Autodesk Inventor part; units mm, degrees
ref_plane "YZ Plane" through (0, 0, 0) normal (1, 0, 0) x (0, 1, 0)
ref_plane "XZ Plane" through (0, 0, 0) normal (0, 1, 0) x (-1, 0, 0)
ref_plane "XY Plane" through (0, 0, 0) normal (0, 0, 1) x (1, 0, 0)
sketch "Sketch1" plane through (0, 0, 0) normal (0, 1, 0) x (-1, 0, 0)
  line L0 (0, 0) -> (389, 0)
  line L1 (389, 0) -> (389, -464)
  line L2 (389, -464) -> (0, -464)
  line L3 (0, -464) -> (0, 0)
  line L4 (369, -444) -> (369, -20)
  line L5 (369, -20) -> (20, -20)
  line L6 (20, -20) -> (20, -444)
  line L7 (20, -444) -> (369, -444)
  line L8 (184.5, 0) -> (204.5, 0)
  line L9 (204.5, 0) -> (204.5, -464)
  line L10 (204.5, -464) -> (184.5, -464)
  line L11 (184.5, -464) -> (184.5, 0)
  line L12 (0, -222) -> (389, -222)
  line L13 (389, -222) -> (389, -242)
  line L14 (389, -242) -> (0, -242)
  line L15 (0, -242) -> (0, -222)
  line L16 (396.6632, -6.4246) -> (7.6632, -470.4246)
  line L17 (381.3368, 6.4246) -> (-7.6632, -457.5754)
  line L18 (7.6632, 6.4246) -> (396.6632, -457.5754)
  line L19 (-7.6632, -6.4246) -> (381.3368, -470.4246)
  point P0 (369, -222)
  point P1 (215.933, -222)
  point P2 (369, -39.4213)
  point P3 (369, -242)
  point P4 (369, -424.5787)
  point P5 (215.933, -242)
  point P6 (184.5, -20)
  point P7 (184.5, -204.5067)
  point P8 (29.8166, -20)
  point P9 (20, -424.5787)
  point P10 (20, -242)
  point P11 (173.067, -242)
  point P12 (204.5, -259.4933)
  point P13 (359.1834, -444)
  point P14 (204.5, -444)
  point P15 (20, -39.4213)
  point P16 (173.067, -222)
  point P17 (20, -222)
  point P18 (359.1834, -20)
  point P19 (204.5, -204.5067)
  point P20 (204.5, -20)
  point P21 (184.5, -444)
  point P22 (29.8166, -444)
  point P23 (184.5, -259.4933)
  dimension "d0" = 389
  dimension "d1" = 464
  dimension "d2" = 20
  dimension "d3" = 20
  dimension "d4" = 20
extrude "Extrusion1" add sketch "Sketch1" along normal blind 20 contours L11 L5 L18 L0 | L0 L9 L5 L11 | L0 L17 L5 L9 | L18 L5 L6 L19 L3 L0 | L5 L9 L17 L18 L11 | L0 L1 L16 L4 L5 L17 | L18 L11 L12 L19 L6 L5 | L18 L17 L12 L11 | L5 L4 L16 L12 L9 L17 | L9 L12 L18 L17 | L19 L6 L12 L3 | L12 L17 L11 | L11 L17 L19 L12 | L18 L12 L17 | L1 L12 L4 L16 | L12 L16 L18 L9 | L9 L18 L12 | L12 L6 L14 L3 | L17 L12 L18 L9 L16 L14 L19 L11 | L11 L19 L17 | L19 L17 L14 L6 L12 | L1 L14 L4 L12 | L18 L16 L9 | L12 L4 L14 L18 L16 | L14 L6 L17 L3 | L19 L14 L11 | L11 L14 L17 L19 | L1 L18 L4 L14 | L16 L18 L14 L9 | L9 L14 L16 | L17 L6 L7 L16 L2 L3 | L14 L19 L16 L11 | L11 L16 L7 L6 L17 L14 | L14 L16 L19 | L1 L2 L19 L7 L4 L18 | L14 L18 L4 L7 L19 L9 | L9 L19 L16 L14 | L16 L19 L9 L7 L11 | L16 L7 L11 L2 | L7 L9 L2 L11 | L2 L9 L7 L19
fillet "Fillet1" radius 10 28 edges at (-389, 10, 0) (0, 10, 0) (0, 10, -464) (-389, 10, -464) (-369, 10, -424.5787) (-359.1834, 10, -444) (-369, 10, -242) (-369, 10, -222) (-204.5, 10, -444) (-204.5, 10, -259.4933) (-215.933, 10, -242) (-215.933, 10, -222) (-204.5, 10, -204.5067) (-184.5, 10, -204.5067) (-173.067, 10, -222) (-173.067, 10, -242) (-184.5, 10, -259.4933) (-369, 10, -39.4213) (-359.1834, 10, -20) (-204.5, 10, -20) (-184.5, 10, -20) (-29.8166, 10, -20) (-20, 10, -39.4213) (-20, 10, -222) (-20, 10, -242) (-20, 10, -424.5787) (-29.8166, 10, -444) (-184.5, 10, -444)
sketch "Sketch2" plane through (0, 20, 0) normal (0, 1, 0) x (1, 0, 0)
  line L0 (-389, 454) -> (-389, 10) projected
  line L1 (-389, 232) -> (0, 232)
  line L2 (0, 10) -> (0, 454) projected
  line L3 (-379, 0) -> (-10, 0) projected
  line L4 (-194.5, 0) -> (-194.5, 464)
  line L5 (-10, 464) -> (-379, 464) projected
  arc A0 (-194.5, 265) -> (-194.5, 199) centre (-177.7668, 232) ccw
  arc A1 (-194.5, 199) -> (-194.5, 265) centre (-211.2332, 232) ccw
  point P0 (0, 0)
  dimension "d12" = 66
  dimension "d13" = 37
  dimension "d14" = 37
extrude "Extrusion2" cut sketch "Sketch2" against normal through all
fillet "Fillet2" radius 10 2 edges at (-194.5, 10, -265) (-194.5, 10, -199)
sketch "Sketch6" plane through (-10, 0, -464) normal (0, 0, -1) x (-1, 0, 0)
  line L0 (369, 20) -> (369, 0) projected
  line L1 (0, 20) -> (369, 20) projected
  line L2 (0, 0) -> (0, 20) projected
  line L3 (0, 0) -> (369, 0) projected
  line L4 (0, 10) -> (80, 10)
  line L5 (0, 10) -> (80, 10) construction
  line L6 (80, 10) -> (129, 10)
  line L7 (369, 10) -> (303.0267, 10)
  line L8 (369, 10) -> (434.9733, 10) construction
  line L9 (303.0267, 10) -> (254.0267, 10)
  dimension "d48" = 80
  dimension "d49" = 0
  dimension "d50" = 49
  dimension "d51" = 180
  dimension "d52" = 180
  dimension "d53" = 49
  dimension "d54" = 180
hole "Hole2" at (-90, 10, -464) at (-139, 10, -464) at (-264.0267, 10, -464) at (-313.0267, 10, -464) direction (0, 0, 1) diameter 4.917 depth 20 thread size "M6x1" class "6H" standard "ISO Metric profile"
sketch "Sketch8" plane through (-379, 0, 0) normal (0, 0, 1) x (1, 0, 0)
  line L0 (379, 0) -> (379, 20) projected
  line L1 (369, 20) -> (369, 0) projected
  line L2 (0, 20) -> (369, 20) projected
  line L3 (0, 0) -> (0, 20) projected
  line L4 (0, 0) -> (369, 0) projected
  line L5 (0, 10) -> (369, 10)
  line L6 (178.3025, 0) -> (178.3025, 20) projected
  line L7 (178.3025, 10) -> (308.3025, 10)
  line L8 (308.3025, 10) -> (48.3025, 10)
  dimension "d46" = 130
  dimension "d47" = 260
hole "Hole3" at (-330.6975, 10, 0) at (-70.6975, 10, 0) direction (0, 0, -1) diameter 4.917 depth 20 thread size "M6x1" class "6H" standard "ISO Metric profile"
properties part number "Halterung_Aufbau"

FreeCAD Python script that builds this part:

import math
import FreeCAD as App
import Part
import Sketcher

V = App.Vector


def edges_at(feature, points):
    """Names of the edges that pass closest to the given points."""
    edges = feature.Shape.Edges
    near = lambda p: min(range(len(edges)), key=lambda i: edges[i].distToShape(Part.Vertex(*p))[0])
    return sorted({f"Edge{near(p) + 1}" for p in points})


def add_polygon(sketch, points):
    """Adds a closed chain of lines whose ends are joined by coincident constraints."""
    first, n = sketch.GeometryCount, len(points)
    for a, b in zip(points, points[1:] + points[:1]):
        sketch.addGeometry(Part.LineSegment(App.Vector(*a, 0), App.Vector(*b, 0)), False)
    for i in range(n):
        sketch.addConstraint(Sketcher.Constraint("Coincident", first + i, 2, first + (i + 1) % n, 1))

doc = App.newDocument("Part")
params = doc.addObject("Spreadsheet::Sheet", "Params")
for row, (alias, value) in enumerate([
    ("sketch1_width", "389 mm"),
    ("sketch1_height", "464 mm"),
    ("pad1_length", "20 mm"),
    ("fillet_radius", "10 mm"),
    ("sketch2_radius", "37 mm"),
    ("fillet2_radius", "10 mm"),
    ("hole_diameter", "4.917 mm"),
    ("hole_depth", "20 mm"),
    ("hole2_diameter", "4.917 mm"),
    ("hole2_depth", "20 mm"),
], start=1):
    params.set(f"A{row}", alias)
    params.set(f"B{row}", "=" + value)
    params.setAlias(f"B{row}", alias)

body = doc.addObject("PartDesign::Body", "Body")

sketch1 = body.newObject("Sketcher::SketchObject", "Sketch")
sketch1.AttachmentSupport = (doc.getObject("XZ_Plane"), [""])
sketch1.MapMode = "FlatFace"
add_polygon(sketch1, [(0, 0), (0, -464), (-389, -464), (-389, 0)])
add_polygon(sketch1, [(-30, -20), (-184, -20), (-184, -205)])
add_polygon(sketch1, [(-204, -20), (-359, -20), (-204, -205)])
add_polygon(sketch1, [(-20, -39), (-173, -222), (-20, -222)])
add_polygon(sketch1, [(-369, -39), (-369, -222), (-216, -222)])
add_polygon(sketch1, [(-20, -242), (-173, -242), (-20, -425)])
add_polygon(sketch1, [(-369, -242), (-369, -425), (-216, -242)])
add_polygon(sketch1, [(-30, -444), (-184, -259), (-184, -444)])
add_polygon(sketch1, [(-359, -444), (-204, -444), (-204, -259)])
sketch1.addConstraint([
    Sketcher.Constraint("Vertical", 0),
    Sketcher.Constraint("Horizontal", 1),
    Sketcher.Constraint("Vertical", 2),
    Sketcher.Constraint("Horizontal", 3),
    Sketcher.Constraint("Horizontal", 4),
    Sketcher.Constraint("Vertical", 5),
    Sketcher.Constraint("Horizontal", 7),
    Sketcher.Constraint("Vertical", 9),
    Sketcher.Constraint("Horizontal", 11),
    Sketcher.Constraint("Vertical", 12),
    Sketcher.Constraint("Vertical", 13),
    Sketcher.Constraint("Horizontal", 14),
    Sketcher.Constraint("Horizontal", 16),
    Sketcher.Constraint("Vertical", 18),
    Sketcher.Constraint("Vertical", 19),
    Sketcher.Constraint("Horizontal", 21),
    Sketcher.Constraint("Vertical", 23),
    Sketcher.Constraint("Horizontal", 24),
    Sketcher.Constraint("Horizontal", 25),
    Sketcher.Constraint("Vertical", 26),
    Sketcher.Constraint("Coincident", 3, 2, -1, 1),
    Sketcher.Constraint("Parallel", 6, 10),
    Sketcher.Constraint("Parallel", 8, 15),
    Sketcher.Constraint("Parallel", 15, 17),
    Sketcher.Constraint("Parallel", 10, 20),
    Sketcher.Constraint("Parallel", 17, 22),
    Sketcher.Constraint("Parallel", 20, 27),
    Sketcher.Constraint("Horizontal", 6, 2, 7, 2),
    Sketcher.Constraint("Horizontal", 5, 2, 8, 2),
    Sketcher.Constraint("Horizontal", 11, 2, 13, 2),
    Sketcher.Constraint("Horizontal", 12, 2, 15, 2),
    Sketcher.Constraint("Horizontal", 17, 2, 19, 2),
    Sketcher.Constraint("Horizontal", 18, 2, 20, 2),
    Sketcher.Constraint("Horizontal", 24, 2, 25, 2),
    Sketcher.Constraint("Horizontal", 22, 2, 26, 2),
    Sketcher.Constraint("Vertical", 10, 2, 16, 2),
    Sketcher.Constraint("Vertical", 12, 2, 17, 2),
    Sketcher.Constraint("Vertical", 15, 2, 19, 2),
    Sketcher.Constraint("Vertical", 14, 2, 20, 2),
    Sketcher.Constraint("Vertical", 5, 2, 22, 2),
    Sketcher.Constraint("Vertical", 6, 2, 24, 2),
    Sketcher.Constraint("Vertical", 9, 2, 25, 2),
    Sketcher.Constraint("DistanceX", 1, 2, 1, 1, 389.0),
    Sketcher.Constraint("DistanceY", 0, 2, 0, 1, 464.0),
    Sketcher.Constraint("DistanceY", 4, 2, -1, 1, 20.0),
    Sketcher.Constraint("DistanceX", 11, 2, -1, 1, 20.0),
    Sketcher.Constraint("DistanceX", 8, 2, 5, 2, 20.0),
    Sketcher.Constraint("DistanceX", 2, 2, 13, 2, 20.0),
    Sketcher.Constraint("DistanceY", 16, 2, 10, 2, 20.0),
    Sketcher.Constraint("DistanceY", 0, 2, 23, 2, 20.0),
    Sketcher.Constraint("DistanceY", 10, 2, -1, 1, 222.0),
    Sketcher.Constraint("DistanceX", 4, 2, -1, 1, 184.5),
    Sketcher.Constraint("DistanceX", 11, 1, 11, 2, 153.067),
    Sketcher.Constraint("Distance", 6, 240.769),
    Sketcher.Constraint("Distance", 10, 238.253),
])
sketch1.setExpression("Constraints[70]", "Params.sketch1_width")
sketch1.setExpression("Constraints[71]", "Params.sketch1_height")
pad1 = body.newObject("PartDesign::Pad", "Pad")
pad1.Profile = sketch1
pad1.setExpression("Length", "Params.pad1_length")
pad1.Reversed = True
doc.recompute()

fillet = body.newObject("PartDesign::Fillet", "Fillet")
fillet.Base = (pad1, edges_at(pad1, [
    (-389, 10, 0),
    (0, 10, 0),
    (0, 10, -464),
    (-389, 10, -464),
    (-369, 10, -424.579),
    (-359.183, 10, -444),
    (-369, 10, -242),
    (-369, 10, -222),
    (-204.5, 10, -444),
    (-204.5, 10, -259.493),
    (-215.933, 10, -242),
    (-215.933, 10, -222),
    (-204.5, 10, -204.507),
    (-184.5, 10, -204.507),
    (-173.067, 10, -222),
    (-173.067, 10, -242),
    (-184.5, 10, -259.493),
    (-369, 10, -39.421),
    (-359.183, 10, -20),
    (-204.5, 10, -20),
    (-184.5, 10, -20),
    (-29.817, 10, -20),
    (-20, 10, -39.421),
    (-20, 10, -222),
    (-20, 10, -242),
    (-20, 10, -424.579),
    (-29.817, 10, -444),
    (-184.5, 10, -444),
]))
fillet.setExpression("Radius", "Params.fillet_radius")

sketch2 = body.newObject("Sketcher::SketchObject", "Sketch001")
sketch2.AttachmentSupport = (doc.getObject("XZ_Plane"), [""])
sketch2.MapMode = "FlatFace"
sketch2.AttachmentOffset = App.Placement(V(0, 0, -20), App.Rotation())
sketch2.addGeometry([
    Part.ArcOfCircle(Part.Circle(V(-178, -232, 0), V(0, 0, 1), 37), math.radians(117), math.radians(243)),
    Part.ArcOfCircle(Part.Circle(V(-211, -232, 0), V(0, 0, 1), 37), math.radians(-63), math.radians(63)),
], False)
sketch2.addConstraint([
    Sketcher.Constraint("Coincident", 0, 1, 1, 2),
    Sketcher.Constraint("Coincident", 1, 1, 0, 2),
    Sketcher.Constraint("Equal", 0, 1),
    Sketcher.Constraint("Horizontal", 0, 3, 1, 3),
    Sketcher.Constraint("Radius", 0, 37.0),
    Sketcher.Constraint("DistanceY", 1, 1, 0, 1, 66.0),
    Sketcher.Constraint("DistanceY", 0, 3, -1, 1, 232.0),
    Sketcher.Constraint("DistanceX", 0, 1, -1, 1, 194.5),
])
sketch2.setExpression("Constraints[4]", "Params.sketch2_radius")
pocket1 = body.newObject("PartDesign::Pocket", "Pocket")
pocket1.Profile = sketch2
pocket1.Type = "ThroughAll"
pocket1.Reversed = True
doc.recompute()

fillet2 = body.newObject("PartDesign::Fillet", "Fillet001")
fillet2.Base = (pocket1, edges_at(pocket1, [(-194.5, 10, -265), (-194.5, 10, -199)]))
fillet2.setExpression("Radius", "Params.fillet2_radius")

sketch3 = body.newObject("Sketcher::SketchObject", "Sketch002")
sketch3.AttachmentSupport = (doc.getObject("XY_Plane"), [""])
sketch3.MapMode = "FlatFace"
sketch3.AttachmentOffset = App.Placement(V(0, 0, -464), App.Rotation())
sketch3.addGeometry([
    Part.Circle(V(-90, 10, 0), V(0, 0, 1), 2.5),
    Part.Circle(V(-139, 10, 0), V(0, 0, 1), 2.5),
    Part.Circle(V(-264, 10, 0), V(0, 0, 1), 2.5),
    Part.Circle(V(-313, 10, 0), V(0, 0, 1), 2.5),
], False)
sketch3.addConstraint([
    Sketcher.Constraint("Equal", 0, 1),
    Sketcher.Constraint("Equal", 1, 2),
    Sketcher.Constraint("Equal", 2, 3),
    Sketcher.Constraint("Horizontal", 0, 3, 1, 3),
    Sketcher.Constraint("Horizontal", 1, 3, 2, 3),
    Sketcher.Constraint("Horizontal", 2, 3, 3, 3),
    Sketcher.Constraint("Diameter", 0, 4.917),
    Sketcher.Constraint("DistanceX", 0, 3, -1, 1, 90.0),
    Sketcher.Constraint("DistanceY", -1, 1, 0, 3, 10.0),
    Sketcher.Constraint("DistanceX", 1, 3, -1, 1, 139.0),
    Sketcher.Constraint("DistanceX", 3, 3, 2, 3, 49.0),
    Sketcher.Constraint("DistanceX", 2, 3, -1, 1, 264.0267),
])
doc.recompute()
hole = body.newObject("PartDesign::Hole", "Hole")
hole.Profile = sketch3
hole.ThreadType = "None"
hole.setExpression("Diameter", "Params.hole_diameter")
hole.DepthType = "Dimension"
hole.setExpression("Depth", "Params.hole_depth")
hole.DrillPoint = "Flat"
hole.Reversed = True

sketch4 = body.newObject("Sketcher::SketchObject", "Sketch003")
sketch4.AttachmentSupport = (doc.getObject("XY_Plane"), [""])
sketch4.MapMode = "FlatFace"
sketch4.addGeometry([
    Part.Circle(V(-330.7, 10, 0), V(0, 0, 1), 2.5),
    Part.Circle(V(-70.7, 10, 0), V(0, 0, 1), 2.5),
], False)
sketch4.addConstraint([
    Sketcher.Constraint("Equal", 0, 1),
    Sketcher.Constraint("Horizontal", 0, 3, 1, 3),
    Sketcher.Constraint("Diameter", 0, 4.917),
    Sketcher.Constraint("DistanceY", -1, 1, 0, 3, 10.0),
    Sketcher.Constraint("DistanceX", 0, 3, 1, 3, 260.0),
    Sketcher.Constraint("DistanceX", 0, 3, -1, 1, 330.6975),
])
doc.recompute()
hole2 = body.newObject("PartDesign::Hole", "Hole001")
hole2.Profile = sketch4
hole2.ThreadType = "None"
hole2.setExpression("Diameter", "Params.hole2_diameter")
hole2.DepthType = "Dimension"
hole2.setExpression("Depth", "Params.hole2_depth")
hole2.DrillPoint = "Flat"

doc.recompute()
